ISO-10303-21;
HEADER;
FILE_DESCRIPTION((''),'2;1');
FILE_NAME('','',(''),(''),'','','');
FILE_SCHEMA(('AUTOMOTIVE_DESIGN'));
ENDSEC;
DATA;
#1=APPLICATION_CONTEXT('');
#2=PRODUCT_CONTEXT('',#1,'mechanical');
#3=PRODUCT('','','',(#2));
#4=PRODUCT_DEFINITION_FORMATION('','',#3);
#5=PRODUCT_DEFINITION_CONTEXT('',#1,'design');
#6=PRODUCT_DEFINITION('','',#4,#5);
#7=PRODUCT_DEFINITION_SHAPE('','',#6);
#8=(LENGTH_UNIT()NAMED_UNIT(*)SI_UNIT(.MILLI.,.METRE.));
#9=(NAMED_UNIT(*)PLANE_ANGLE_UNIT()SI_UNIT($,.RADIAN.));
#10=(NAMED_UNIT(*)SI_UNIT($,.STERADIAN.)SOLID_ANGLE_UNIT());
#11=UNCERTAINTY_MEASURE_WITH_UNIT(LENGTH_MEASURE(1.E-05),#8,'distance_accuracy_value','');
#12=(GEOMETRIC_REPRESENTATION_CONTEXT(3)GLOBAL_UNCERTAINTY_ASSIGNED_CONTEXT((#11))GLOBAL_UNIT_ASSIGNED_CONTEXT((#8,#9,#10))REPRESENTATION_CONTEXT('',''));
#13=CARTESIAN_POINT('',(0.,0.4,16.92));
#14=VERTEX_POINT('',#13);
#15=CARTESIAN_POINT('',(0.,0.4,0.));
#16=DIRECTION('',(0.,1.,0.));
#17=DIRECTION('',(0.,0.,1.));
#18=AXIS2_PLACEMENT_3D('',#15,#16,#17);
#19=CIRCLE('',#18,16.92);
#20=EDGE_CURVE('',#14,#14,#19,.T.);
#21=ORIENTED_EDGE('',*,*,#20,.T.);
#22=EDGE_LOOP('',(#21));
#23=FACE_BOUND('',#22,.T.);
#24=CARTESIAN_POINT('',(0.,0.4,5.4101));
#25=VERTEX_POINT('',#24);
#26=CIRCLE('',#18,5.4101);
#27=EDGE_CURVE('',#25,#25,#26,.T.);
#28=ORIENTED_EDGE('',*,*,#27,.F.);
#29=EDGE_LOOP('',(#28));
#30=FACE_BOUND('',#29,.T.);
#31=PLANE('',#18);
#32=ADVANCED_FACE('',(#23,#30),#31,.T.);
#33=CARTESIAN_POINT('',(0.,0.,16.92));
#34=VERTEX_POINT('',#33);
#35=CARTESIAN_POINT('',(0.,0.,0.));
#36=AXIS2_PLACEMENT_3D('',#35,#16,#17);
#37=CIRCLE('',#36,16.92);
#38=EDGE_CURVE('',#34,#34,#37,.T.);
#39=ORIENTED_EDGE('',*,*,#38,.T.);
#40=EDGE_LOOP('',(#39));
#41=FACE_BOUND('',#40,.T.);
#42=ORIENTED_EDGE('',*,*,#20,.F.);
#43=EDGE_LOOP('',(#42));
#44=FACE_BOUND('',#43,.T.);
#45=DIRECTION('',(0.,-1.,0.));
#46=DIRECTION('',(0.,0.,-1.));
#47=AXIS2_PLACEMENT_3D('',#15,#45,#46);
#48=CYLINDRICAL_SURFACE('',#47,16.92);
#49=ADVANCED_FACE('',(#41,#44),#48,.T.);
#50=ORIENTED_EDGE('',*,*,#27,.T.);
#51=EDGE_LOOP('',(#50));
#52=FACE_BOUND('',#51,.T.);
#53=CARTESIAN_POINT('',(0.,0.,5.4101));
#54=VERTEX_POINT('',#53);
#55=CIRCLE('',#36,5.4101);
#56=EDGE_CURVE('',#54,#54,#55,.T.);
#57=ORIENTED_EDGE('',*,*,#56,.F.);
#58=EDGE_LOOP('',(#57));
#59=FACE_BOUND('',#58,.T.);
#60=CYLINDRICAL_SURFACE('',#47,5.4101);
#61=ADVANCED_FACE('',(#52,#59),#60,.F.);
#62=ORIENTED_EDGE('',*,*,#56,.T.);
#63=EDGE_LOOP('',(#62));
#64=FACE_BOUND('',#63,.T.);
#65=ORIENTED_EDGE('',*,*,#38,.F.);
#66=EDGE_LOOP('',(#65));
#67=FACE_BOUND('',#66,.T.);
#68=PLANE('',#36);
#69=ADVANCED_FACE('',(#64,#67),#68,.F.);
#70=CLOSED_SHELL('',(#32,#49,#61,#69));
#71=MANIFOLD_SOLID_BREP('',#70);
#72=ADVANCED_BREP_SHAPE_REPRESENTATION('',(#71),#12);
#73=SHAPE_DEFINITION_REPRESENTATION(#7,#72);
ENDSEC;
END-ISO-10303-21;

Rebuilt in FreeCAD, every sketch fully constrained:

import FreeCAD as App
import Part
import Sketcher

V = App.Vector

doc = App.newDocument("Part")
body = doc.addObject("PartDesign::Body", "Body")

# Sketch on XZ plane
sketch1 = body.newObject("Sketcher::SketchObject", "Sketch")
sketch1.AttachmentSupport = (doc.getObject("XZ_Plane"), [""])
sketch1.MapMode = "FlatFace"
sketch1.addGeometry([
    Part.Circle(V(0, 0, 0), V(0, 0, 1), 16.92),
    Part.Circle(V(0, 0, 0), V(0, 0, 1), 5.4101),
], False)
sketch1.addConstraint([
    Sketcher.Constraint("Coincident", 0, 3, -1, 1),
    Sketcher.Constraint("Coincident", 1, 3, -1, 1),
    Sketcher.Constraint("Diameter", 0, 33.84),
    Sketcher.Constraint("Diameter", 1, 10.8202),
])
pad1 = body.newObject("PartDesign::Pad", "Pad")
pad1.Profile = sketch1
pad1.Length = 0.4
pad1.Reversed = True

doc.recompute()
